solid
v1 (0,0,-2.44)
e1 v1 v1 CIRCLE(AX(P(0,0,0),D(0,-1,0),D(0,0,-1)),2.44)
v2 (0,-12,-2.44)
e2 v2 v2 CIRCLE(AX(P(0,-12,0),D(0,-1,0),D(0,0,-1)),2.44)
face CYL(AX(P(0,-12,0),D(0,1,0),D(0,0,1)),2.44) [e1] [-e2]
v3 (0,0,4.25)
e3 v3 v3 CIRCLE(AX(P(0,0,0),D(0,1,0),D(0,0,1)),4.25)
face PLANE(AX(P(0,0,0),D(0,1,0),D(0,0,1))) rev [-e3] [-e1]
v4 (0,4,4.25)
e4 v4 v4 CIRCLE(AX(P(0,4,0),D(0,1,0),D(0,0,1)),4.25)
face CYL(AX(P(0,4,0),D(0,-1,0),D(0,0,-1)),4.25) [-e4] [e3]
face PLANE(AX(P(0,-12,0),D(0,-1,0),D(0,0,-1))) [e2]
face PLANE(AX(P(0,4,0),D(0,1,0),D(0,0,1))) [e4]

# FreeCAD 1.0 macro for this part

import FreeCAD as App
import Part
import Sketcher

V = App.Vector
Q = App.Units.Quantity

doc = App.newDocument("Part")
body = doc.addObject("PartDesign::Body", "Body")

sketch1 = body.newObject("Sketcher::SketchObject", "Sketch")
sketch1.AttachmentSupport = (doc.getObject("XZ_Plane"), [""])
sketch1.MapMode = "FlatFace"
sketch1.addGeometry(Part.Circle(V(0, 0, 0), V(0, 0, 1), 4.2), False)
sketch1.addConstraint([
    Sketcher.Constraint("Coincident", 0, 3, -1, 1),
    Sketcher.Constraint("Diameter", 0, Q("8.5 mm")),
])
pad1 = body.newObject("PartDesign::Pad", "Pad")
pad1.Profile = sketch1
pad1.Length = 4
pad1.Reversed = True

sketch2 = body.newObject("Sketcher::SketchObject", "Sketch001")
sketch2.AttachmentSupport = (doc.getObject("XZ_Plane"), [""])
sketch2.MapMode = "FlatFace"
sketch2.addGeometry(Part.Circle(V(0, 0, 0), V(0, 0, 1), 2.4), False)
sketch2.addConstraint([
    Sketcher.Constraint("Coincident", 0, 3, -1, 1),
    Sketcher.Constraint("Diameter", 0, Q("4.88 mm")),
])
pad2 = body.newObject("PartDesign::Pad", "Pad001")
pad2.Profile = sketch2
pad2.Length = 12

doc.recompute()
